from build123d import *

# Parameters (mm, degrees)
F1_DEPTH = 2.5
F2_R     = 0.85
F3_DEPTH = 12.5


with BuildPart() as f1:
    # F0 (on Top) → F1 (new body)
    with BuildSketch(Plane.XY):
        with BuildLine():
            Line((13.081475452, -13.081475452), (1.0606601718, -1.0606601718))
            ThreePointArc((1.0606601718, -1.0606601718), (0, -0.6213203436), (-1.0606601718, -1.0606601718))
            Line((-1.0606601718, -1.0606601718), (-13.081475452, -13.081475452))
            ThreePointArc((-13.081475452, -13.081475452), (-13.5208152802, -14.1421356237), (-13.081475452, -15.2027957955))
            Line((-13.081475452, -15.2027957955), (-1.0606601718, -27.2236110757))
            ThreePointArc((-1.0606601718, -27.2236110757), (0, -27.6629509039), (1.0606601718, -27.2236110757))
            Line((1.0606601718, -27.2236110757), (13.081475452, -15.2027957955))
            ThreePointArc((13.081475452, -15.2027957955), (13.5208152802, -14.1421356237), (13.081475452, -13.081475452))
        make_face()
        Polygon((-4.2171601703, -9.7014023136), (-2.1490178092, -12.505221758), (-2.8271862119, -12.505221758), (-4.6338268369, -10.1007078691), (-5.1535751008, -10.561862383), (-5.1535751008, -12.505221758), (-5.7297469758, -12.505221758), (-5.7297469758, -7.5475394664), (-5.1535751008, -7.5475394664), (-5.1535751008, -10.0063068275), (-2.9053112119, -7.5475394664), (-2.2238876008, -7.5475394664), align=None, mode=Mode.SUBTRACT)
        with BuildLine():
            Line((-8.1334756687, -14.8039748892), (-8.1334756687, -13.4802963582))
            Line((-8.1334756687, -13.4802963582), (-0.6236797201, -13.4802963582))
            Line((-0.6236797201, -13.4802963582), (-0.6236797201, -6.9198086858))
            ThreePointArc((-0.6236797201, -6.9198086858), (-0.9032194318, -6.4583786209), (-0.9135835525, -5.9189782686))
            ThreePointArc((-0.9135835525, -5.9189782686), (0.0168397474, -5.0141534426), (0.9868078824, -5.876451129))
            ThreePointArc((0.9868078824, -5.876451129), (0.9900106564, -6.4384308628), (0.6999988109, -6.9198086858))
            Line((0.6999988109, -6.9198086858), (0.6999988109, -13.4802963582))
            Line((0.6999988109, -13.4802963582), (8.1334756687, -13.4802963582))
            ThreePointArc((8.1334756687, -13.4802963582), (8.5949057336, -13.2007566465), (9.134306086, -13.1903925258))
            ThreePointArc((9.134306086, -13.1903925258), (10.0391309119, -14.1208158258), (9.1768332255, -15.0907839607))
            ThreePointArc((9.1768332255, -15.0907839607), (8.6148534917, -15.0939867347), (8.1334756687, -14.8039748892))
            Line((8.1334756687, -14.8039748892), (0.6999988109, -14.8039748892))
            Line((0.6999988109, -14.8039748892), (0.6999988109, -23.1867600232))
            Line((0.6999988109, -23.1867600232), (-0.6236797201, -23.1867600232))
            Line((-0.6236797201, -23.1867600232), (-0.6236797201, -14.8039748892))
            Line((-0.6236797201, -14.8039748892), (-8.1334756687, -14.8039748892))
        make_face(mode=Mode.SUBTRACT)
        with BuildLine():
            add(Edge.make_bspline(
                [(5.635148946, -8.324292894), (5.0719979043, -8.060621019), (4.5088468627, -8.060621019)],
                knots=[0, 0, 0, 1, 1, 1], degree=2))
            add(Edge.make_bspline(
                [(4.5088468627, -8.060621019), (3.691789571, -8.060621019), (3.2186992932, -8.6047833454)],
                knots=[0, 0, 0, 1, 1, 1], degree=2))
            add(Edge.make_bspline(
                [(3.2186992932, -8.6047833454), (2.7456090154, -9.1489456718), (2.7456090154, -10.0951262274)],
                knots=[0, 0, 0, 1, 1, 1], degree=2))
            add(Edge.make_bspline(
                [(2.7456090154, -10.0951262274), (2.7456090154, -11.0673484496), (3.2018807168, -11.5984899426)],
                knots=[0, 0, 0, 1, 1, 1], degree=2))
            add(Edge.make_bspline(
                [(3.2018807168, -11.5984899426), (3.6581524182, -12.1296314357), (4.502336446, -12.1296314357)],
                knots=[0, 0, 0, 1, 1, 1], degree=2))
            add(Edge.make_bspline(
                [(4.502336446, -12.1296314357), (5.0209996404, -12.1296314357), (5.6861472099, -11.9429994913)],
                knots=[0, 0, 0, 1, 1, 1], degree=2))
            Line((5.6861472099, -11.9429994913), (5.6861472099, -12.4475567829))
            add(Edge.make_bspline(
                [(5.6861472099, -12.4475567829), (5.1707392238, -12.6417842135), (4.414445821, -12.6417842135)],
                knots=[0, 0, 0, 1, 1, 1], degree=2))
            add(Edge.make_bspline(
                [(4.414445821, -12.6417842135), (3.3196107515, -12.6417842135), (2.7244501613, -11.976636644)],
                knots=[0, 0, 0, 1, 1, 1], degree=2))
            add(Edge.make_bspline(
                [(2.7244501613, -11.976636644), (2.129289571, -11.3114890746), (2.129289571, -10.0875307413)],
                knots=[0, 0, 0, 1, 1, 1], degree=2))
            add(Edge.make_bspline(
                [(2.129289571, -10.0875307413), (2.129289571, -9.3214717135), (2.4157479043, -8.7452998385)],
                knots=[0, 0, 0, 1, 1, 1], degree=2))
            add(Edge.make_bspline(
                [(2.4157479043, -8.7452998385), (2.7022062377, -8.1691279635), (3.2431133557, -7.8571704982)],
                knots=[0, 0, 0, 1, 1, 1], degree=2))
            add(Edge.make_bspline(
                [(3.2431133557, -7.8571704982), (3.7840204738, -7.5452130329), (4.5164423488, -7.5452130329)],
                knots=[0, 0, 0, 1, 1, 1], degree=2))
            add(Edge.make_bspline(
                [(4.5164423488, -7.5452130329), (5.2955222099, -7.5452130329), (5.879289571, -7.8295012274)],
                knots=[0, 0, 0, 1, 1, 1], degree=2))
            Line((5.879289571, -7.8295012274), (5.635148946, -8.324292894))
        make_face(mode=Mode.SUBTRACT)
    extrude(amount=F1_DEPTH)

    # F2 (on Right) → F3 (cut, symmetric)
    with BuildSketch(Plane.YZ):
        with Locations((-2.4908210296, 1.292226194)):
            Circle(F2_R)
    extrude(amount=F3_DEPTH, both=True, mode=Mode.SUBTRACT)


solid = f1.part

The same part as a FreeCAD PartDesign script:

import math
import FreeCAD as App
import Part
import Sketcher

V = App.Vector
Q = App.Units.Quantity


def add_polygon(sketch, points):
    """Adds a closed chain of lines whose ends are joined by coincident constraints."""
    first, n = sketch.GeometryCount, len(points)
    for a, b in zip(points, points[1:] + points[:1]):
        sketch.addGeometry(Part.LineSegment(App.Vector(*a, 0), App.Vector(*b, 0)), False)
    for i in range(n):
        sketch.addConstraint(Sketcher.Constraint("Coincident", first + i, 2, first + (i + 1) % n, 1))

doc = App.newDocument("Part")
body = doc.addObject("PartDesign::Body", "Body")

# Sketch on XY plane
sketch1 = doc.addObject("Sketcher::SketchObject", "Sketch")
body.addObject(sketch1)
sketch1.AttachmentSupport = (doc.XY_Plane, [""])
sketch1.MapMode = "FlatFace"
sketch1.addGeometry(Part.LineSegment(V(13.081475, -13.081475, 0), V(1.06066, -1.06066, 0)), False)  # 0
sketch1.addGeometry(Part.ArcOfCircle(Part.Circle(V(0, -2.12132, 0), V(0, 0, 1), 1.5), math.radians(45), math.radians(135)), False)  # 1
sketch1.addGeometry(Part.LineSegment(V(-1.06066, -1.06066, 0), V(-13.081475, -13.081475, 0)), False)  # 2
sketch1.addGeometry(Part.ArcOfCircle(Part.Circle(V(-12.020815, -14.142136, 0), V(0, 0, 1), 1.5), math.radians(135), math.radians(225)), False)  # 3
sketch1.addGeometry(Part.LineSegment(V(-13.081475, -15.202796, 0), V(-1.06066, -27.223611, 0)), False)  # 4
sketch1.addGeometry(Part.ArcOfCircle(Part.Circle(V(0, -26.162951, 0), V(0, 0, 1), 1.5), math.radians(-135), math.radians(-45)), False)  # 5
sketch1.addGeometry(Part.LineSegment(V(1.06066, -27.223611, 0), V(13.081475, -15.202796, 0)), False)  # 6
sketch1.addGeometry(Part.ArcOfCircle(Part.Circle(V(12.020815, -14.142136, 0), V(0, 0, 1), 1.5), math.radians(-45), math.radians(45)), False)  # 7
add_polygon(sketch1, [(-2.223888, -7.547539), (-4.21716, -9.701402), (-2.149018, -12.505222), (-2.827186, -12.505222), (-4.633827, -10.100708), (-5.153575, -10.561862), (-5.153575, -12.505222), (-5.729747, -12.505222), (-5.729747, -7.547539), (-5.153575, -7.547539), (-5.153575, -10.006307), (-2.905311, -7.547539)])  # lines 8-19
sketch1.addGeometry(Part.LineSegment(V(-0.62368, -14.803975, 0), V(-8.133476, -14.803975, 0)), False)  # 20
sketch1.addGeometry(Part.LineSegment(V(-8.133476, -14.803975, 0), V(-8.133476, -13.480296, 0)), False)  # 21
sketch1.addGeometry(Part.LineSegment(V(-8.133476, -13.480296, 0), V(-0.62368, -13.480296, 0)), False)  # 22
sketch1.addGeometry(Part.LineSegment(V(-0.62368, -13.480296, 0), V(-0.62368, -6.919809, 0)), False)  # 23
sketch1.addGeometry(Part.ArcOfCircle(Part.Circle(V(0.094379, -6.169411, 0), V(0, 0, 1), 1.038608), math.radians(166.047147), math.radians(226.261577)), False)  # 24
sketch1.addGeometry(Part.ArcOfCircle(Part.Circle(V(0.03816, -5.966862, 0), V(0, 0, 1), 0.952947), math.radians(5.444116), math.radians(177.119797)), False)  # 25
sketch1.addGeometry(Part.ArcOfCircle(Part.Circle(V(-0.011448, -6.163139, 0), V(0, 0, 1), 1.038608), math.radians(-46.764314), math.radians(16.023479)), False)  # 26
sketch1.addGeometry(Part.LineSegment(V(0.699999, -6.919809, 0), V(0.699999, -13.480296, 0)), False)  # 27
sketch1.addGeometry(Part.LineSegment(V(0.699999, -13.480296, 0), V(8.133476, -13.480296, 0)), False)  # 28
sketch1.addGeometry(Part.ArcOfCircle(Part.Circle(V(8.883873, -14.198355, 0), V(0, 0, 1), 1.038608), math.radians(76.047147), math.radians(136.261577)), False)  # 29
sketch1.addGeometry(Part.ArcOfCircle(Part.Circle(V(9.086423, -14.142136, 0), V(0, 0, 1), 0.952947), math.radians(-84.555884), math.radians(87.119797)), False)  # 30
sketch1.addGeometry(Part.ArcOfCircle(Part.Circle(V(8.890145, -14.092528, 0), V(0, 0, 1), 1.038608), math.radians(-136.764314), math.radians(-73.976521)), False)  # 31
sketch1.addGeometry(Part.LineSegment(V(8.133476, -14.803975, 0), V(0.699999, -14.803975, 0)), False)  # 32
sketch1.addGeometry(Part.LineSegment(V(0.699999, -14.803975, 0), V(0.699999, -23.18676, 0)), False)  # 33
sketch1.addGeometry(Part.LineSegment(V(0.699999, -23.18676, 0), V(-0.62368, -23.18676, 0)), False)  # 34
sketch1.addGeometry(Part.LineSegment(V(-0.62368, -23.18676, 0), V(-0.62368, -14.803975, 0)), False)  # 35
sketch1.addGeometry(Part.LineSegment(V(5.87929, -7.829501, 0), V(5.635149, -8.324293, 0)), False)  # 36
sketch1.addGeometry(Part.BSplineCurve([V(5.635149, -8.324293, 0), V(5.071998, -8.060621, 0), V(3.69179, -8.060621, 0), V(2.745609, -9.148946, 0), V(2.745609, -11.067348, 0), V(3.201881, -11.59849, 0)], [3, 1, 1, 1, 3], [0, 1, 2.450867052, 3.901734105, 5.392533277], False, 2, [1, 1, 1, 1, 1, 1], False), False)  # 37
sketch1.addGeometry(Part.BSplineCurve([V(3.201881, -11.59849, 0), V(3.658152, -12.129631, 0), V(5.021, -12.129631, 0), V(5.686147, -11.942999, 0)], [3, 1, 3], [0, 1, 1.614395887], False, 2, [1, 1, 1, 1], False), False)  # 38
sketch1.addGeometry(Part.LineSegment(V(5.686147, -11.942999, 0), V(5.686147, -12.447557, 0)), False)  # 39
sketch1.addGeometry(Part.BSplineCurve([V(5.686147, -12.447557, 0), V(5.170739, -12.641784, 0), V(3.319611, -12.641784, 0), V(2.72445, -11.976637, 0)], [3, 1, 3], [0, 1, 2.447632712], False, 2, [1, 1, 1, 1], False), False)  # 40
sketch1.addGeometry(Part.BSplineCurve([V(2.72445, -11.976637, 0), V(2.12929, -11.311489, 0), V(2.12929, -9.321472, 0), V(2.415748, -8.7453, 0)], [3, 1, 3], [0, 1, 1.625886525], False, 2, [1, 1, 1, 1], False), False)  # 41
sketch1.addGeometry(Part.BSplineCurve([V(2.415748, -8.7453, 0), V(2.702206, -8.169128, 0), V(3.243113, -7.85717, 0)], [3, 3], [0, 1], False, 2, [1, 1, 1], False), False)  # 42
sketch1.addGeometry(Part.BSplineCurve([V(3.243113, -7.85717, 0), V(3.78402, -7.545213, 0), V(5.295522, -7.545213, 0), V(5.87929, -7.829501, 0)], [3, 1, 3], [0, 1, 2.063703704], False, 2, [1, 1, 1, 1], False), False)  # 43
sketch1.addConstraint([
    Sketcher.Constraint("Block", 37),
    Sketcher.Constraint("Block", 38),
    Sketcher.Constraint("Block", 40),
    Sketcher.Constraint("Block", 41),
    Sketcher.Constraint("Block", 42),
    Sketcher.Constraint("Block", 43),
    Sketcher.Constraint("Tangent", 0, 2, 1, 1),
    Sketcher.Constraint("Tangent", 1, 2, 2, 1),
    Sketcher.Constraint("Tangent", 2, 2, 3, 1),
    Sketcher.Constraint("Tangent", 3, 2, 4, 1),
    Sketcher.Constraint("Tangent", 4, 2, 5, 1),
    Sketcher.Constraint("Tangent", 5, 2, 6, 1),
    Sketcher.Constraint("Tangent", 6, 2, 7, 1),
    Sketcher.Constraint("Tangent", 7, 2, 0, 1),
    Sketcher.Constraint("Coincident", 20, 2, 21, 1),
    Sketcher.Constraint("Coincident", 21, 2, 22, 1),
    Sketcher.Constraint("Coincident", 22, 2, 23, 1),
    Sketcher.Constraint("Coincident", 23, 2, 24, 2),
    Sketcher.Constraint("Coincident", 24, 1, 25, 2),
    Sketcher.Constraint("Coincident", 25, 1, 26, 2),
    Sketcher.Constraint("Coincident", 26, 1, 27, 1),
    Sketcher.Constraint("Coincident", 27, 2, 28, 1),
    Sketcher.Constraint("Coincident", 28, 2, 29, 2),
    Sketcher.Constraint("Coincident", 29, 1, 30, 2),
    Sketcher.Constraint("Coincident", 30, 1, 31, 2),
    Sketcher.Constraint("Coincident", 31, 1, 32, 1),
    Sketcher.Constraint("Coincident", 32, 2, 33, 1),
    Sketcher.Constraint("Coincident", 33, 2, 34, 1),
    Sketcher.Constraint("Coincident", 34, 2, 35, 1),
    Sketcher.Constraint("Coincident", 35, 2, 20, 1),
    Sketcher.Constraint("Coincident", 36, 2, 37, 1),
    Sketcher.Constraint("Coincident", 38, 2, 39, 1),
    Sketcher.Constraint("Coincident", 39, 2, 40, 1),
    Sketcher.Constraint("Coincident", 43, 2, 36, 1),
    Sketcher.Constraint("Horizontal", 10),
    Sketcher.Constraint("Vertical", 13),
    Sketcher.Constraint("Horizontal", 14),
    Sketcher.Constraint("Vertical", 15),
    Sketcher.Constraint("Horizontal", 16),
    Sketcher.Constraint("Vertical", 17),
    Sketcher.Constraint("Horizontal", 19),
    Sketcher.Constraint("Horizontal", 20),
    Sketcher.Constraint("Vertical", 21),
    Sketcher.Constraint("Horizontal", 22),
    Sketcher.Constraint("Vertical", 23),
    Sketcher.Constraint("Vertical", 27),
    Sketcher.Constraint("Horizontal", 28),
    Sketcher.Constraint("Horizontal", 32),
    Sketcher.Constraint("Vertical", 33),
    Sketcher.Constraint("Horizontal", 34),
    Sketcher.Constraint("Vertical", 35),
    Sketcher.Constraint("Equal", 1, 3),
    Sketcher.Constraint("Equal", 3, 5),
    Sketcher.Constraint("Equal", 5, 7),
    Sketcher.Constraint("Equal", 24, 26),
    Sketcher.Constraint("Equal", 26, 29),
    Sketcher.Constraint("Equal", 25, 30),
    Sketcher.Constraint("Equal", 29, 31),
    Sketcher.Constraint("Symmetric", 3, 3, 7, 3, -2),
    Sketcher.Constraint("Symmetric", 21, 2, 28, 2, -2),
    Sketcher.Constraint("Symmetric", 20, 2, 31, 1, -2),
    Sketcher.Constraint("PointOnObject", 1, 3, -2),
    Sketcher.Constraint("PointOnObject", 5, 3, -2),
    Sketcher.Constraint("Perpendicular", 0, 2),
    Sketcher.Constraint("Perpendicular", 2, 4),
    Sketcher.Constraint("Horizontal", 7, 3, 30, 3),
    Sketcher.Constraint("Horizontal", 10, 2, 13, 2),
    Sketcher.Constraint("Horizontal", 16, 2, 18, 2),
    Sketcher.Constraint("Horizontal", 23, 2, 26, 1),
    Sketcher.Constraint("Vertical", 13, 2, 16, 2),
    Sketcher.Constraint("Vertical", 27, 2, 32, 2),
    Sketcher.Constraint("Vertical", 23, 2, 34, 2),
    Sketcher.Constraint("Equal", 34, 21),
    Sketcher.Constraint("Radius", 1, Q("1.5 mm")),
    Sketcher.Constraint("Distance", 0, Q("17 mm")),
    Sketcher.Constraint("DistanceX", -1, 1, 26, 1, Q("0.699999 mm")),
    Sketcher.Constraint("Radius", 24, Q("1.038608 mm")),
    Sketcher.Constraint("Radius", 25, Q("0.952947 mm")),
    Sketcher.Constraint("DistanceX", 3, 2, 20, 2, Q("4.948 mm")),
    Sketcher.Constraint("Distance", 18, Q("3.3317 mm")),
    Sketcher.Constraint("DistanceX", 10, 2, 10, 1, Q("0.678168 mm")),
    Sketcher.Constraint("DistanceX", 14, 2, 14, 1, Q("0.576172 mm")),
    Sketcher.Constraint("DistanceX", 34, 2, 34, 1, Q("1.323679 mm")),
    Sketcher.Constraint("DistanceY", 13, 2, 13, 1, Q("1.943359 mm")),
    Sketcher.Constraint("DistanceX", 25, 3, 0, 2, Q("1.022501 mm")),
    Sketcher.Constraint("DistanceY", 25, 3, 0, 2, Q("4.906202 mm")),
    Sketcher.Constraint("DistanceX", 29, 3, 6, 2, Q("4.197602 mm")),
    Sketcher.Constraint("DistanceY", 11, 2, 17, 2, Q("0.094401 mm")),
    Sketcher.Constraint("DistanceY", 18, 2, 26, 3, Q("1.3844 mm")),
    Sketcher.Constraint("DistanceX", 20, 2, 13, 2, Q("2.979901 mm")),
    Sketcher.Constraint("DistanceY", 29, 1, 36, 2, Q("4.8661 mm")),
    Sketcher.Constraint("DistanceY", 29, 3, 39, 2, Q("1.750799 mm")),
    Sketcher.Constraint("Distance", 9, Q("3.484052 mm")),
    Sketcher.Constraint("Distance", 12, Q("0.694839 mm")),
    Sketcher.Constraint("DistanceX", 19, 1, 19, 2, Q("0.681424 mm")),
    Sketcher.Constraint("DistanceY", 15, 1, 15, 2, Q("4.957682 mm")),
    Sketcher.Constraint("DistanceY", 17, 2, 17, 1, Q("2.458767 mm")),
    Sketcher.Constraint("DistanceY", 23, 1, 23, 2, Q("6.560488 mm")),
    Sketcher.Constraint("DistanceY", 33, 2, 33, 1, Q("8.382785 mm")),
    Sketcher.Constraint("DistanceY", 1, 3, -1, 1, Q("2.12132 mm")),
    Sketcher.Constraint("DistanceX", -1, 1, 24, 3, Q("0.094379 mm")),
    Sketcher.Constraint("DistanceX", 26, 3, -1, 1, Q("0.011448 mm")),
    Sketcher.Constraint("DistanceX", 8, 2, -1, 1, Q("4.21716 mm")),
    Sketcher.Constraint("DistanceX", 29, 3, 31, 3, Q("0.006272 mm")),
    Sketcher.Constraint("DistanceY", 8, 2, 24, 3, Q("3.531991 mm")),
])
pad1 = doc.addObject("PartDesign::Pad", "Pad")
body.addObject(pad1)
pad1.Profile = sketch1
pad1.Length = 2.5

# Sketch on YZ plane
sketch2 = doc.addObject("Sketcher::SketchObject", "Sketch001")
body.addObject(sketch2)
sketch2.AttachmentSupport = (doc.YZ_Plane, [""])
sketch2.MapMode = "FlatFace"
sketch2.addGeometry(Part.Circle(V(-2.5, 1.3, 0), V(0, 0, 1), 0.8), False)
sketch2.addConstraint([
    Sketcher.Constraint("Diameter", 0, Q("1.7 mm")),
    Sketcher.Constraint("DistanceX", 0, 3, -1, 1, Q("2.490821 mm")),
    Sketcher.Constraint("DistanceY", -1, 1, 0, 3, Q("1.292226 mm")),
])
pocket1 = doc.addObject("PartDesign::Pocket", "Pocket")
body.addObject(pocket1)
pocket1.Profile = sketch2
pocket1.Length = 25
pocket1.Midplane = True

doc.recompute()
